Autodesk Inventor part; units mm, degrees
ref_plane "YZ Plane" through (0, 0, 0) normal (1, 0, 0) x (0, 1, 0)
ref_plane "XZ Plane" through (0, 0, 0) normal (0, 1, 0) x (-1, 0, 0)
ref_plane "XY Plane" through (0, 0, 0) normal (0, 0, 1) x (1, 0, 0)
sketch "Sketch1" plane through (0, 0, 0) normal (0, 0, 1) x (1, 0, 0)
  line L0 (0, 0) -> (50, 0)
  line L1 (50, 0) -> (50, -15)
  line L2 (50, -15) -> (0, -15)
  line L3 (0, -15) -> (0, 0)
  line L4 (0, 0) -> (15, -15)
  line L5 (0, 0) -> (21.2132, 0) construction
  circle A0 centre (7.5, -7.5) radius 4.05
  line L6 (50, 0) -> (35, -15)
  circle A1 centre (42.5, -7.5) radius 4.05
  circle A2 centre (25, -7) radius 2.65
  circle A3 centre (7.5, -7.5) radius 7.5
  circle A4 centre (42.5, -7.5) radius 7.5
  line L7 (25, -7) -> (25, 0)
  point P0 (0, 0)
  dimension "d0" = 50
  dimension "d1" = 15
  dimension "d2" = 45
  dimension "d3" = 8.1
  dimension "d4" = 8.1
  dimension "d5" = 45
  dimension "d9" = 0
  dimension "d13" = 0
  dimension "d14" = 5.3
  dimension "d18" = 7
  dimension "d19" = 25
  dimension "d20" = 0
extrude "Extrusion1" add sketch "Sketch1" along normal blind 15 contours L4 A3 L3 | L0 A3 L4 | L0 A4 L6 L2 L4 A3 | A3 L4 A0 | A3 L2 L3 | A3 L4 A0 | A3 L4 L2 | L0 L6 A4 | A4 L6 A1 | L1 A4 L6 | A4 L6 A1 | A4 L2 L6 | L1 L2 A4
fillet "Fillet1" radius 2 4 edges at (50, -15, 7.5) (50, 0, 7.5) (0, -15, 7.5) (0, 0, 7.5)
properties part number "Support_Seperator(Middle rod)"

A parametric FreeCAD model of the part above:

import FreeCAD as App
import Part
import Sketcher

V = App.Vector
Q = App.Units.Quantity


def edges_at(feature, points):
    """Names of the edges that pass closest to the given points."""
    edges = feature.Shape.Edges
    near = lambda p: min(range(len(edges)), key=lambda i: edges[i].distToShape(Part.Vertex(*p))[0])
    return sorted({f"Edge{near(p) + 1}" for p in points})


def add_polygon(sketch, points):
    """Adds a closed chain of lines whose ends are joined by coincident constraints."""
    first, n = sketch.GeometryCount, len(points)
    for a, b in zip(points, points[1:] + points[:1]):
        sketch.addGeometry(Part.LineSegment(App.Vector(*a, 0), App.Vector(*b, 0)), False)
    for i in range(n):
        sketch.addConstraint(Sketcher.Constraint("Coincident", first + i, 2, first + (i + 1) % n, 1))

doc = App.newDocument("Part")
body = doc.addObject("PartDesign::Body", "Body")

# Sketch on XY plane
sketch1 = body.newObject("Sketcher::SketchObject", "Sketch")
sketch1.AttachmentSupport = (doc.getObject("XY_Plane"), [""])
sketch1.MapMode = "FlatFace"
add_polygon(sketch1, [(0, 0), (0, -15), (50, -15), (50, 0), (25, 0)])  # lines 0-4
sketch1.addGeometry(Part.Circle(V(7.5, -7.5, 0), V(0, 0, 1), 4.05), False)  # 5
sketch1.addGeometry(Part.Circle(V(25, -7, 0), V(0, 0, 1), 2.65), False)  # 6
sketch1.addGeometry(Part.Circle(V(42.5, -7.5, 0), V(0, 0, 1), 4.05), False)  # 7
sketch1.addConstraint([
    Sketcher.Constraint("Vertical", 0),
    Sketcher.Constraint("Horizontal", 1),
    Sketcher.Constraint("Vertical", 2),
    Sketcher.Constraint("Horizontal", 3),
    Sketcher.Constraint("Horizontal", 4),
    Sketcher.Constraint("Coincident", 4, 2, -1, 1),
    Sketcher.Constraint("Equal", 5, 7),
    Sketcher.Constraint("Horizontal", 5, 3, 7, 3),
    Sketcher.Constraint("Vertical", 6, 3, 3, 2),
    Sketcher.Constraint("Equal", 3, 4),
    Sketcher.Constraint("Diameter", 5, Q("8.1 mm")),
    Sketcher.Constraint("Diameter", 6, Q("5.3 mm")),
    Sketcher.Constraint("DistanceX", 1, 1, 1, 2, Q("50 mm")),
    Sketcher.Constraint("DistanceY", 0, 2, 0, 1, Q("15 mm")),
    Sketcher.Constraint("DistanceY", 6, 3, -1, 1, Q("7 mm")),
    Sketcher.Constraint("DistanceX", 5, 3, 7, 3, Q("35 mm")),
    Sketcher.Constraint("DistanceX", -1, 1, 5, 3, Q("7.5 mm")),
    Sketcher.Constraint("DistanceY", 5, 3, -1, 1, Q("7.5 mm")),
])
pad1 = body.newObject("PartDesign::Pad", "Pad")
pad1.Profile = sketch1
pad1.Length = 15
doc.recompute()

fillet = body.newObject("PartDesign::Fillet", "Fillet")
fillet.Base = (pad1, edges_at(pad1, [
    (50, -15, 7.5),
    (50, 0, 7.5),
    (0, -15, 7.5),
    (0, 0, 7.5),
]))
fillet.Radius = 2

doc.recompute()
